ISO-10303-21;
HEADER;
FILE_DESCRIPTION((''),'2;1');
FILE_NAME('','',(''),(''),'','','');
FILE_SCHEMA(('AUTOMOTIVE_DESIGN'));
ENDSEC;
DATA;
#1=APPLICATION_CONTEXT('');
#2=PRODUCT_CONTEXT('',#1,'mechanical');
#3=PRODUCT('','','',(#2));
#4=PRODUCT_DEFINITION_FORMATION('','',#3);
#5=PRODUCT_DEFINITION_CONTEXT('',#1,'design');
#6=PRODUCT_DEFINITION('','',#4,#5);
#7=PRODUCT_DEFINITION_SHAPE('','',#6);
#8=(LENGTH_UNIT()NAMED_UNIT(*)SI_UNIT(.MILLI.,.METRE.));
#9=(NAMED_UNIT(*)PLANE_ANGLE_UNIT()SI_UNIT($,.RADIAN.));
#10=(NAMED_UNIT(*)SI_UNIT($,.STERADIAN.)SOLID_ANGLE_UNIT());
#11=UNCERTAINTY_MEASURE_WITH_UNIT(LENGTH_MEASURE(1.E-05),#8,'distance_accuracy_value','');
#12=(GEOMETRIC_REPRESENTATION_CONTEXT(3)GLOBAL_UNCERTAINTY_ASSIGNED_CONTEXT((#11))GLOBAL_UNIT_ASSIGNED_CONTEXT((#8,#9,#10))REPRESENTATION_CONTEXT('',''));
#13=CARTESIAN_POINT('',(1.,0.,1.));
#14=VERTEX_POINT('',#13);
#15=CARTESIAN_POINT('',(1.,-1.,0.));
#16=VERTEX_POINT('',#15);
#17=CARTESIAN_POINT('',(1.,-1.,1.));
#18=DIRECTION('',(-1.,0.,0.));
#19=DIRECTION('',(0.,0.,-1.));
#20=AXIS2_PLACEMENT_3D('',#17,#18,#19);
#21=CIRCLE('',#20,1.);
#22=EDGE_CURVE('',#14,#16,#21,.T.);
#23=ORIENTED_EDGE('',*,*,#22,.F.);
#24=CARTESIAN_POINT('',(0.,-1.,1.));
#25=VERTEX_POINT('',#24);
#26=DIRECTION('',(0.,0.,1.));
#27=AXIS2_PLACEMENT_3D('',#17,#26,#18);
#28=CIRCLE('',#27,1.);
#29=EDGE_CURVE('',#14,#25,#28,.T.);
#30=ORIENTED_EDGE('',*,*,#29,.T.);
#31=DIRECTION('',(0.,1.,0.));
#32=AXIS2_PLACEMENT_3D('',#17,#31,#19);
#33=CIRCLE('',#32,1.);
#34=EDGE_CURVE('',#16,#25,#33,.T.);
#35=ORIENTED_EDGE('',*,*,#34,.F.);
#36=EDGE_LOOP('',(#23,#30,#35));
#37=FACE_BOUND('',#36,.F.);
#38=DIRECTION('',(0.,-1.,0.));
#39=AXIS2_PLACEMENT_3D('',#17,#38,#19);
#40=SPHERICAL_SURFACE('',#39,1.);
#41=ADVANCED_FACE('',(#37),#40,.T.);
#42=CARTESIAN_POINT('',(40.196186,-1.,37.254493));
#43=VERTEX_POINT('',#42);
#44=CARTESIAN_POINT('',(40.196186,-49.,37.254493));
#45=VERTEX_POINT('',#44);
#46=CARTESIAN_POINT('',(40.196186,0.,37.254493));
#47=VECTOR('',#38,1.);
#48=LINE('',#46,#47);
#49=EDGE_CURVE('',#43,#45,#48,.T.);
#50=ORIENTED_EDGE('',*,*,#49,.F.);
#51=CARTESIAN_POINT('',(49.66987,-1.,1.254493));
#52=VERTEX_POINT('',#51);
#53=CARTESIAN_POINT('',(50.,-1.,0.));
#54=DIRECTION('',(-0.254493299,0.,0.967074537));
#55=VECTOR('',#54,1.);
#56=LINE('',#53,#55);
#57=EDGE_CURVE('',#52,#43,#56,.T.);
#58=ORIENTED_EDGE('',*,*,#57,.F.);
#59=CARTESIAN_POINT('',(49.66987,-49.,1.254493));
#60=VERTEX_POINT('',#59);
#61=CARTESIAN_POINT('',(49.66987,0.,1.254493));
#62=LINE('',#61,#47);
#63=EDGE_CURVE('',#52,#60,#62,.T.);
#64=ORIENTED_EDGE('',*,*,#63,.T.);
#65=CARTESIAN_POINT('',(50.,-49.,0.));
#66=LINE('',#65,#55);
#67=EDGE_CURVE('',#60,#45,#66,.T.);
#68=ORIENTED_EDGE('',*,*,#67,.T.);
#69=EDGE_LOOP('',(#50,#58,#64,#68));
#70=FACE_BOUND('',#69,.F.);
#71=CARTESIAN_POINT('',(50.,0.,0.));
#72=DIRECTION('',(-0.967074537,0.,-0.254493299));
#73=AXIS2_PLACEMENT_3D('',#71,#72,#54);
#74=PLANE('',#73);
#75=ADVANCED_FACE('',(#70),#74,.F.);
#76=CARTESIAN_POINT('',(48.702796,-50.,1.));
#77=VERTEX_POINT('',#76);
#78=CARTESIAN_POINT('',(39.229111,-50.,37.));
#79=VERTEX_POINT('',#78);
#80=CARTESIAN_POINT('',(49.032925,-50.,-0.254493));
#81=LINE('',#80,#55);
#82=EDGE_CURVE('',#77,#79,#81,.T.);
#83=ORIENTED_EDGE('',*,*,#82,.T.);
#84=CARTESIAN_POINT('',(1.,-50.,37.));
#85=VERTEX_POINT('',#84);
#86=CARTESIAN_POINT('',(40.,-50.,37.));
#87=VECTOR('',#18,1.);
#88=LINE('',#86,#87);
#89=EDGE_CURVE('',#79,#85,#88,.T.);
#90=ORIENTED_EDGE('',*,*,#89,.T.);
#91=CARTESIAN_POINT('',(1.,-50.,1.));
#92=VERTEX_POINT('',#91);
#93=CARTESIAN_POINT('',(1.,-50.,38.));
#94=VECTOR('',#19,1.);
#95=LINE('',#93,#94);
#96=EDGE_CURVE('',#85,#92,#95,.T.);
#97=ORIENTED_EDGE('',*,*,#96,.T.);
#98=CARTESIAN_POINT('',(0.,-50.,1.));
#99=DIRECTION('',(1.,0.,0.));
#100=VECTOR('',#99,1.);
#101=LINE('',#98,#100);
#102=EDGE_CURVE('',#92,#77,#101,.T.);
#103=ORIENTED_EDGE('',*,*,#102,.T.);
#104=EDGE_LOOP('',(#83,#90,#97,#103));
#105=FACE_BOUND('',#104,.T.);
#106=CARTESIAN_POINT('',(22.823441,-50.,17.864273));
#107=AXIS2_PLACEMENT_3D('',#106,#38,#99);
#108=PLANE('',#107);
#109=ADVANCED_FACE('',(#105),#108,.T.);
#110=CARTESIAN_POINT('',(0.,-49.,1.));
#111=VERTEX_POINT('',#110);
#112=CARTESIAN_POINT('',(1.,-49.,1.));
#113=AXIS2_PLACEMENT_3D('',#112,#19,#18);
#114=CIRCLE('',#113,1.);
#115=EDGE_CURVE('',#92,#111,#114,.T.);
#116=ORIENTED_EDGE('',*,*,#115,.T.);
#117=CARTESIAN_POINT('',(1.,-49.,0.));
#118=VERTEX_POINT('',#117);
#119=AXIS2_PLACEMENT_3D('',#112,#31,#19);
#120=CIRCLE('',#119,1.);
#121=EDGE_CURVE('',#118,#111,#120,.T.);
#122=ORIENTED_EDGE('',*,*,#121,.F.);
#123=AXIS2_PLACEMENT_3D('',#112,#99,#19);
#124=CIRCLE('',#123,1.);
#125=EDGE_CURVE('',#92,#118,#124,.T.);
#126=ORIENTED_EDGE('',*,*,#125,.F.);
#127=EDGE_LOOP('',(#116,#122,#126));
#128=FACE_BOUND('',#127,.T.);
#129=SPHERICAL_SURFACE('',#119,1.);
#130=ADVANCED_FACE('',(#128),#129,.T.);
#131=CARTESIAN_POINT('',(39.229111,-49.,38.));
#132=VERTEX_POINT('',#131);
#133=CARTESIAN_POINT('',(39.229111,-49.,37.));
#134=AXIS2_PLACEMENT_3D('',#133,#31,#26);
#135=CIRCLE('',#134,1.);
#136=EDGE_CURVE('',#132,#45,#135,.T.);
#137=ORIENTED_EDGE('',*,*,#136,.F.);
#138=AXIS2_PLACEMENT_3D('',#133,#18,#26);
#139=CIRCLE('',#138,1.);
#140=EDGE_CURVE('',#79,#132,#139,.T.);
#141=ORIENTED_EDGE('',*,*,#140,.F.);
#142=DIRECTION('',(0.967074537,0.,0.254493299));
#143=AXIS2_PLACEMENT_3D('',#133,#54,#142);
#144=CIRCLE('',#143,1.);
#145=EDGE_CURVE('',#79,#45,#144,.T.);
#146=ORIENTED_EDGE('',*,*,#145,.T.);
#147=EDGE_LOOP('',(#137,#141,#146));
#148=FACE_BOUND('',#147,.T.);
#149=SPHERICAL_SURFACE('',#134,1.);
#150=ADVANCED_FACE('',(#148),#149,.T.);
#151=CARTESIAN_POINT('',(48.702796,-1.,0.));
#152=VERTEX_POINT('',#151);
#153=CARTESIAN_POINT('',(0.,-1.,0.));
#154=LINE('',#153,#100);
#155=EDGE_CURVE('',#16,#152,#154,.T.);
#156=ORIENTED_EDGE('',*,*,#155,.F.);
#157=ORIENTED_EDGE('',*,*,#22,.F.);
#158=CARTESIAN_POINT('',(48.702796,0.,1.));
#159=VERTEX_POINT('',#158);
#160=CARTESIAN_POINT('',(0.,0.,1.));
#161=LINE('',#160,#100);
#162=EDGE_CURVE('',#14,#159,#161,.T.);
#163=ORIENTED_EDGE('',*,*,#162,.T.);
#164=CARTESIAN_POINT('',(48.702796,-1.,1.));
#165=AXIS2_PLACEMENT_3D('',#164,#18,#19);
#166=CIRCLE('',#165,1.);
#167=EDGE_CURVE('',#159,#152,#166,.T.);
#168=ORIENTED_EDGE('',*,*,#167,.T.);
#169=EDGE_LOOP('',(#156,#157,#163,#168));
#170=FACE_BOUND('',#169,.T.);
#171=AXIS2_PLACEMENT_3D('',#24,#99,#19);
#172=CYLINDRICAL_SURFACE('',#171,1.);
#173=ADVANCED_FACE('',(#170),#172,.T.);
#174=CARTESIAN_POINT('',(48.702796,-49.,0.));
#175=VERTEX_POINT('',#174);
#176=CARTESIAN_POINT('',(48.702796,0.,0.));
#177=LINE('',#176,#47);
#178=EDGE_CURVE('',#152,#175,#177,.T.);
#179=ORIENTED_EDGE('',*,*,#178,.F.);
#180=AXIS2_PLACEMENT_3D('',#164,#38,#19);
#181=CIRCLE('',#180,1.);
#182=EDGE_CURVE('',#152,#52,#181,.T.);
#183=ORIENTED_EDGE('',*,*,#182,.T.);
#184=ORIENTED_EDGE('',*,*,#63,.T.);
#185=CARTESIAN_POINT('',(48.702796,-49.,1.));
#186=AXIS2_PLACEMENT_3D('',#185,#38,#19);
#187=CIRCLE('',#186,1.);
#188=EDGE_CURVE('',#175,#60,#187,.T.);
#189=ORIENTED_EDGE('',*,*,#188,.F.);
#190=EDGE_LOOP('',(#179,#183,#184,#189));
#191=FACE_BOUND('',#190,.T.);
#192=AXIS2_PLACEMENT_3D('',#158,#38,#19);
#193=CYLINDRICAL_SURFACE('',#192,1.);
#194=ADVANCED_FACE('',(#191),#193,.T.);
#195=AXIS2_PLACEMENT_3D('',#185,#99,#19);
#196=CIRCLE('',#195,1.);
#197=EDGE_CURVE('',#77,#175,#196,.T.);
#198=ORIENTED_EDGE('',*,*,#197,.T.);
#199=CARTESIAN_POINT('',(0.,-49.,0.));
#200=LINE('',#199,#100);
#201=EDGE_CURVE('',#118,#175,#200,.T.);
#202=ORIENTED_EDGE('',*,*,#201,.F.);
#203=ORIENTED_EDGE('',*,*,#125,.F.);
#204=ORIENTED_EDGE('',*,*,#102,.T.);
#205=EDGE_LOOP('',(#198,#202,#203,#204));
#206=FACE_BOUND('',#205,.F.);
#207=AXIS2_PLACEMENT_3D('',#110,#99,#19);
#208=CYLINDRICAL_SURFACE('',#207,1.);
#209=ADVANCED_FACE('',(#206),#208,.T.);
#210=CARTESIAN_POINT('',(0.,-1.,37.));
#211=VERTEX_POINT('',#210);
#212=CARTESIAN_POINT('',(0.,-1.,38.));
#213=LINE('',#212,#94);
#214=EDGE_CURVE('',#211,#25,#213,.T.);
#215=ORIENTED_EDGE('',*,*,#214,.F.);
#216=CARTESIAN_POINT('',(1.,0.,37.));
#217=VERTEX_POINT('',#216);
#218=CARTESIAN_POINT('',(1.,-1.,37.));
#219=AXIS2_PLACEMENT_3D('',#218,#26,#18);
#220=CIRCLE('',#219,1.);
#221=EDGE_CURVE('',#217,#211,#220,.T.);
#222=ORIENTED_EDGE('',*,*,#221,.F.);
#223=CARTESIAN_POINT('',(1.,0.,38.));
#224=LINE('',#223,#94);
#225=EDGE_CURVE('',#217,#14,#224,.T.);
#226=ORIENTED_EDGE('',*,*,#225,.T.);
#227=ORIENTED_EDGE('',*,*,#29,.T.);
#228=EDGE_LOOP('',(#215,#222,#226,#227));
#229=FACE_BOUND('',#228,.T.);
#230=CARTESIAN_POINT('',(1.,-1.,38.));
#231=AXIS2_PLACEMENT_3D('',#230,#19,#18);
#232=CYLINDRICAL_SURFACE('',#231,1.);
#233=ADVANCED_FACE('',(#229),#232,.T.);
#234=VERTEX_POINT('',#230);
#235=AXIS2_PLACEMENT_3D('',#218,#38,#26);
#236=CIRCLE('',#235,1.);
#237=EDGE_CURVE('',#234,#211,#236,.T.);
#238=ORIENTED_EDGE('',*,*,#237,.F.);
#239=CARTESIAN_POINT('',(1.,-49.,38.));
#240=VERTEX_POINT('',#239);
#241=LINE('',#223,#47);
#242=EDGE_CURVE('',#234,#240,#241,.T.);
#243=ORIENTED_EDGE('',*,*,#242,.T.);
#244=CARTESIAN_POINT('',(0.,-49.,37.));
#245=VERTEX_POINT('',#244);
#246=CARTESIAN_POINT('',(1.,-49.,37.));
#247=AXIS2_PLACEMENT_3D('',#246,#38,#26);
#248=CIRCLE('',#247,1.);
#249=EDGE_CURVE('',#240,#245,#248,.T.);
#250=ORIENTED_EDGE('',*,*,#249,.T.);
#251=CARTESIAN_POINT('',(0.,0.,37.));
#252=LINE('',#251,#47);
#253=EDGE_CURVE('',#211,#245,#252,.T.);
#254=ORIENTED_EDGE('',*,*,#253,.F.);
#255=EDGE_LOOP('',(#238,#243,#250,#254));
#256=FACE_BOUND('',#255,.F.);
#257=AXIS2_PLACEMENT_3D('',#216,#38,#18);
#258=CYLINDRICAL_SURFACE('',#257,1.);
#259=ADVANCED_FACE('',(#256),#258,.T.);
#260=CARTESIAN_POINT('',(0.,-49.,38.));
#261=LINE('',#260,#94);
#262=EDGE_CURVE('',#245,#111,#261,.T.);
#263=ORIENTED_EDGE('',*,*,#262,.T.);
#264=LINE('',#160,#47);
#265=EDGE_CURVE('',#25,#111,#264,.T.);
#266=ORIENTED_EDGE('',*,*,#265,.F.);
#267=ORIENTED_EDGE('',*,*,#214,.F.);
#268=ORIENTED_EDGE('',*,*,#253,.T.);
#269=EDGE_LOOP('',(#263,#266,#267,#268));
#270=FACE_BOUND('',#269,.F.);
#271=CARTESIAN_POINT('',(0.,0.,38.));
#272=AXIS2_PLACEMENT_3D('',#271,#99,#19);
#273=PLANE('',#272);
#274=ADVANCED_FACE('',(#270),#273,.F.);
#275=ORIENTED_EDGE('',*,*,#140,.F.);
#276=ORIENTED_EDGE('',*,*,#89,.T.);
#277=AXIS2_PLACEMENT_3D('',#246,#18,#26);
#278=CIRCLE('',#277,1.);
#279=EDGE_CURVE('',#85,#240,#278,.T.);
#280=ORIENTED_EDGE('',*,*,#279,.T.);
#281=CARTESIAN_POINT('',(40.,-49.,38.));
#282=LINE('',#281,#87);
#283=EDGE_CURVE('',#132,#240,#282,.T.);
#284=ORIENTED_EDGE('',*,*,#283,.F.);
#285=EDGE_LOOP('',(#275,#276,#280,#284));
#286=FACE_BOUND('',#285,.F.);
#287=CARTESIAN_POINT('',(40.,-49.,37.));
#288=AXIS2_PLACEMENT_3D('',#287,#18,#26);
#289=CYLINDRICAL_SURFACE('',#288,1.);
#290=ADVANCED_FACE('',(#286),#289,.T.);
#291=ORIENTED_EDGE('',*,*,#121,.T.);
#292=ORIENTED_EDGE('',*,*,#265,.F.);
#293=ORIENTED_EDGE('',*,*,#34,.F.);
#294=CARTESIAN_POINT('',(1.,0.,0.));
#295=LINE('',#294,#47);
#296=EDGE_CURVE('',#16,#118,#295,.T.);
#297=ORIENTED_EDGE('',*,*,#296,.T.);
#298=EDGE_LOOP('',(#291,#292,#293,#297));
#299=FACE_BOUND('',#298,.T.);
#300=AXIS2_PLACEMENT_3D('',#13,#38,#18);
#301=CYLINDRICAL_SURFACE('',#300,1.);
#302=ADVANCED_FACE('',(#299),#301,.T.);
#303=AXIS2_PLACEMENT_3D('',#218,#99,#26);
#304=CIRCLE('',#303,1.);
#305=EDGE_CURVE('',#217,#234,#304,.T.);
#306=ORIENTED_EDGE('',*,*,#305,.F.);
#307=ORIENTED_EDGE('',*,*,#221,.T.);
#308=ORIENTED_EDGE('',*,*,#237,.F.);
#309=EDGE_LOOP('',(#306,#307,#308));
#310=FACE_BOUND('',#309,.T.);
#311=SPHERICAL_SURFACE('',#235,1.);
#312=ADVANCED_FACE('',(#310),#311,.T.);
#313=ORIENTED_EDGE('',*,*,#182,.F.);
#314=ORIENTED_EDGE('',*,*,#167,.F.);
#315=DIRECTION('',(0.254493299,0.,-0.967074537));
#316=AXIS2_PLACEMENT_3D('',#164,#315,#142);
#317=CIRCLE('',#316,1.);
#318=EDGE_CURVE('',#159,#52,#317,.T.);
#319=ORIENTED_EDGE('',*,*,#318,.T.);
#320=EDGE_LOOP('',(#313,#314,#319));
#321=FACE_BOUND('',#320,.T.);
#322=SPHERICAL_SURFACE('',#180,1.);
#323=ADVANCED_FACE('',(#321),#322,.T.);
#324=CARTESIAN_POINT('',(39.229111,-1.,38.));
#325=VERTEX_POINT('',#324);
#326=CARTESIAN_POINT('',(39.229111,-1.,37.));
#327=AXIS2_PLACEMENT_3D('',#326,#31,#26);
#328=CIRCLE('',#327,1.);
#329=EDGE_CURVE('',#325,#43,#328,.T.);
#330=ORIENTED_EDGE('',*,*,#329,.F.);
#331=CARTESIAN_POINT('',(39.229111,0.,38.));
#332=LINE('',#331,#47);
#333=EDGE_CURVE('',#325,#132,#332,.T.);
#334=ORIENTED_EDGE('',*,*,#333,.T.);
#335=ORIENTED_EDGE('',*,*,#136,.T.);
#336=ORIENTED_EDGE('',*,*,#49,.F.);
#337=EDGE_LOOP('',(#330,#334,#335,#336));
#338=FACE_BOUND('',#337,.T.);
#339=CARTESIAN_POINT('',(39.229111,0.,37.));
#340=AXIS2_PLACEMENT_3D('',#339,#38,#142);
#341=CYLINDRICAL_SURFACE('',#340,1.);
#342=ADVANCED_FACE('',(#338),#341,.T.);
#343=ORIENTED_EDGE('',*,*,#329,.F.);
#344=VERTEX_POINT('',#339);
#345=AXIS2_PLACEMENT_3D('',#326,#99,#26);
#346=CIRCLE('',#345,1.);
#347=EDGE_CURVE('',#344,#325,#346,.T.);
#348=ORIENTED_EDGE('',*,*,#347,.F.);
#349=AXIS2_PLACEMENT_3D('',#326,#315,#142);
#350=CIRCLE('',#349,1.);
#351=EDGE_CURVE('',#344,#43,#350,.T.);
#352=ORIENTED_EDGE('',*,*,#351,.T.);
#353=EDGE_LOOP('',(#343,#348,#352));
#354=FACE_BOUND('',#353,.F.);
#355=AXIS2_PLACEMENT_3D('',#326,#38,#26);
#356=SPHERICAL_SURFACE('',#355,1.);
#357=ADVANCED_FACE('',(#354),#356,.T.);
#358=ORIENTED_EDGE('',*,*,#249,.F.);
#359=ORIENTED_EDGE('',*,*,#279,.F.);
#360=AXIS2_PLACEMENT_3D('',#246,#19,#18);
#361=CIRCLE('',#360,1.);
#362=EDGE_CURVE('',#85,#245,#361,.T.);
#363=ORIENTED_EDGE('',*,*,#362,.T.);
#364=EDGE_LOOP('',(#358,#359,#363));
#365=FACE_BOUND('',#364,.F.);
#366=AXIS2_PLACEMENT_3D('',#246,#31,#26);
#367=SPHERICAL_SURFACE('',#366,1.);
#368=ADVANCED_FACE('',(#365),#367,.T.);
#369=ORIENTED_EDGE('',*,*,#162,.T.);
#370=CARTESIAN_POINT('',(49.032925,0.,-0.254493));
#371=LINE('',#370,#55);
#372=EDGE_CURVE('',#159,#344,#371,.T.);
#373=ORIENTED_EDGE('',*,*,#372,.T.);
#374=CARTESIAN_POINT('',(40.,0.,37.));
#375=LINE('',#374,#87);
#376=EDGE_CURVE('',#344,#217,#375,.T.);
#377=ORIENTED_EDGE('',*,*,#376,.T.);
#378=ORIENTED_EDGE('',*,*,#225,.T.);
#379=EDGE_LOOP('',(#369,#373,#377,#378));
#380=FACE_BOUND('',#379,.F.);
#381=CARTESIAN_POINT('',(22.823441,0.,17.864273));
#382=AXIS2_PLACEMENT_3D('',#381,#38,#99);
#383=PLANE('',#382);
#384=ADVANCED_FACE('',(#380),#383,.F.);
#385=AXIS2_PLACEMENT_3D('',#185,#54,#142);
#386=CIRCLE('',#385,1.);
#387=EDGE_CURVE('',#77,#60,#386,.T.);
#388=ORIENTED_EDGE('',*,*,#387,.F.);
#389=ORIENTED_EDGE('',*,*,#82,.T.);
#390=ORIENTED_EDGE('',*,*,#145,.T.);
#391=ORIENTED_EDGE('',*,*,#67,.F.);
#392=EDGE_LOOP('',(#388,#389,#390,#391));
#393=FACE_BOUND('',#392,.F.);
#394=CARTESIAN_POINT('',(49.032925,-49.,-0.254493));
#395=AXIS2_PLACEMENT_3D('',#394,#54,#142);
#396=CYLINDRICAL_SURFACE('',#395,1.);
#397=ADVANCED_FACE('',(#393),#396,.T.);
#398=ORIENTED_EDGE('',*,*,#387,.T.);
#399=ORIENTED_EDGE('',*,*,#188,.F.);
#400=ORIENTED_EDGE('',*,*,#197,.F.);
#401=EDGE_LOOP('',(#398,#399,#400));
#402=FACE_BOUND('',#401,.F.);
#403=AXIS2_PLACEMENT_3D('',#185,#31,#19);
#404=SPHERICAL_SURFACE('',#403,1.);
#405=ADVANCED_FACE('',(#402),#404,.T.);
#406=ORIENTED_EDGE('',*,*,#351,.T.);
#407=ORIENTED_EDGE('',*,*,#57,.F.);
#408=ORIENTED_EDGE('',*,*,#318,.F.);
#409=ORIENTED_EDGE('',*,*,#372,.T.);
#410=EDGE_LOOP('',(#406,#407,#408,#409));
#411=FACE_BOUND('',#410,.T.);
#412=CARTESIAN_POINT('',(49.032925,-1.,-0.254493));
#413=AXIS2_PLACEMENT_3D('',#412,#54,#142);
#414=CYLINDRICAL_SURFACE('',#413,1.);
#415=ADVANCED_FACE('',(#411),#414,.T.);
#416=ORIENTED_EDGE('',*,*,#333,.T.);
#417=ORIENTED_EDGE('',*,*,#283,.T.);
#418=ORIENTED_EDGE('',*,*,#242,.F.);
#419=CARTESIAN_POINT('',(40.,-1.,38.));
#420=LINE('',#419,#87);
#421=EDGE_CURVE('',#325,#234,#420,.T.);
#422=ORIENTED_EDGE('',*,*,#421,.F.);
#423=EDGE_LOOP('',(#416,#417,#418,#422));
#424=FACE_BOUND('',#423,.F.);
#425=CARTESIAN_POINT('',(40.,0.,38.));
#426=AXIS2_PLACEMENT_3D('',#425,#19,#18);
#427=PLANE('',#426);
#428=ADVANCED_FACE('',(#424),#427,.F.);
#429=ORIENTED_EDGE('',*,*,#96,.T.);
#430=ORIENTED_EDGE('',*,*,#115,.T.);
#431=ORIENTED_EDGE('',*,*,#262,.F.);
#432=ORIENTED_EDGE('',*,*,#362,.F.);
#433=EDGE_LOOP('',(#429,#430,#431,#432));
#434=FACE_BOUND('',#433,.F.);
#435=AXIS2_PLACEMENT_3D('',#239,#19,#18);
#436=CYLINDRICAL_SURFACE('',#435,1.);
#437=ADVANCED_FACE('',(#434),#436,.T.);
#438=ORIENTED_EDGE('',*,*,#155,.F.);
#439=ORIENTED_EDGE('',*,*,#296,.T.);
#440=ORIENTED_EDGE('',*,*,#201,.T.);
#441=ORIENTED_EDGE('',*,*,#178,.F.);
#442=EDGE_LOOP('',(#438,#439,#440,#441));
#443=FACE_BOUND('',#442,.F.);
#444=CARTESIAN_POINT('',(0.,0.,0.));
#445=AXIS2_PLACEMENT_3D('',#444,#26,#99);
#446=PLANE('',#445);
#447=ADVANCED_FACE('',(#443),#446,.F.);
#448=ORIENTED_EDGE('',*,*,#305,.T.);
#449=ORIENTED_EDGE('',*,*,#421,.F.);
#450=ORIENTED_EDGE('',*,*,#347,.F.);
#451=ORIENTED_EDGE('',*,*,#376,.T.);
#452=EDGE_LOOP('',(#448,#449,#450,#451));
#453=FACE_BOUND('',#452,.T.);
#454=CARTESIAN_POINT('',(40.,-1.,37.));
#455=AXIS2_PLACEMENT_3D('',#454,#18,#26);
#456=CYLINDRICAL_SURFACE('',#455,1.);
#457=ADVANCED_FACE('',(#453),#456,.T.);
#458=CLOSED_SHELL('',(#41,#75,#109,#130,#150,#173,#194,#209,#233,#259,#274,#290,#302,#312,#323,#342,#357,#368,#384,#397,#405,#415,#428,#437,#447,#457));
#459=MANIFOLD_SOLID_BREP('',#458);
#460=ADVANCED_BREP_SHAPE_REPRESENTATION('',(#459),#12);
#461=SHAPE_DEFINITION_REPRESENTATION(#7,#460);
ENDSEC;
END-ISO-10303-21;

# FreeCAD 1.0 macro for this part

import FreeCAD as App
import Part
import Sketcher

V = App.Vector
Q = App.Units.Quantity

doc = App.newDocument("Part")
body = doc.addObject("PartDesign::Body", "Body")

sketch1 = body.newObject("Sketcher::SketchObject", "Sketch")
sketch1.AttachmentSupport = (doc.getObject("XZ_Plane"), [""])
sketch1.MapMode = "FlatFace"
sketch1.addGeometry([
    Part.LineSegment(V(0, 38, 0), V(0, 0, 0)),
    Part.LineSegment(V(0, 0, 0), V(50, 0, 0)),
    Part.LineSegment(V(50, 0, 0), V(40, 38, 0)),
    Part.LineSegment(V(40, 38, 0), V(0, 38, 0)),
], False)
sketch1.addConstraint([
    Sketcher.Constraint("Coincident", 0, 2, 1, 1),
    Sketcher.Constraint("Coincident", 1, 2, 2, 1),
    Sketcher.Constraint("Coincident", 2, 2, 3, 1),
    Sketcher.Constraint("Coincident", 3, 2, 0, 1),
    Sketcher.Constraint("Vertical", 0),
    Sketcher.Constraint("Horizontal", 1),
    Sketcher.Constraint("Horizontal", 3),
    Sketcher.Constraint("Coincident", 0, 2, -1, 1),
    Sketcher.Constraint("DistanceX", 1, 1, 1, 2, Q("50 mm")),
    Sketcher.Constraint("DistanceX", 3, 2, 3, 1, Q("40 mm")),
    Sketcher.Constraint("DistanceY", 0, 2, 0, 1, Q("38 mm")),
])
pad1 = body.newObject("PartDesign::Pad", "Pad")
pad1.Profile = sketch1
pad1.Length = 50
doc.recompute()

fillet = body.newObject("PartDesign::Fillet", "Fillet")
fillet.Base = (pad1, ["Edge1"])
fillet.UseAllEdges = True
fillet.Radius = 1

doc.recompute()
